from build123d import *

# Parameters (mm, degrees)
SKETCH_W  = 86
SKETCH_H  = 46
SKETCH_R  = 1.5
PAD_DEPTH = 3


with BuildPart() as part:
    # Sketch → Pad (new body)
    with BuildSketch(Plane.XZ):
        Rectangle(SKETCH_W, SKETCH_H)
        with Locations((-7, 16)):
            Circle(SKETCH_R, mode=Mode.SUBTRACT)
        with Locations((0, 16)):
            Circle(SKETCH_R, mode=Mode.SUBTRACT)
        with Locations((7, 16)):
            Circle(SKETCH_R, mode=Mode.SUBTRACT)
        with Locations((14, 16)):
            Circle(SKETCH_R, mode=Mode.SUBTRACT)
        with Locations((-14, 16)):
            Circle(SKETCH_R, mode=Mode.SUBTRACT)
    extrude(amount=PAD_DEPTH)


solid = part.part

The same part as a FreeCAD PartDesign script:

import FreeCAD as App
import Part
import Sketcher
from FreeCAD import Vector

doc = App.newDocument("Part")
body = doc.addObject("PartDesign::Body", "Body")

# Sketch on XZ plane
sketch1 = body.newObject("Sketcher::SketchObject", "Sketch")
sketch1.AttachmentSupport = (doc.getObject("XZ_Plane"), [""])
sketch1.MapMode = "FlatFace"
sketch1.addGeometry([
    Part.LineSegment(Vector(-43, 23, 0), Vector(-43, -23, 0)),  # 0
    Part.LineSegment(Vector(-43, -23, 0), Vector(43, -23, 0)),  # 1
    Part.LineSegment(Vector(43, -23, 0), Vector(43, 23, 0)),  # 2
    Part.LineSegment(Vector(43, 23, 0), Vector(-43, 23, 0)),  # 3
    Part.Circle(Vector(-14, 16, 0), Vector(0, 0, 1), 1.5),  # 4
    Part.Circle(Vector(-7, 16, 0), Vector(0, 0, 1), 1.5),  # 5
    Part.Circle(Vector(0, 16, 0), Vector(0, 0, 1), 1.5),  # 6
    Part.Circle(Vector(7, 16, 0), Vector(0, 0, 1), 1.5),  # 7
    Part.Circle(Vector(14, 16, 0), Vector(0, 0, 1), 1.5),  # 8
], False)
sketch1.addConstraint([
    Sketcher.Constraint("Coincident", 0, 2, 1, 1),
    Sketcher.Constraint("Coincident", 1, 2, 2, 1),
    Sketcher.Constraint("Coincident", 2, 2, 3, 1),
    Sketcher.Constraint("Coincident", 3, 2, 0, 1),
    Sketcher.Constraint("Vertical", 0),
    Sketcher.Constraint("Horizontal", 1),
    Sketcher.Constraint("Vertical", 2),
    Sketcher.Constraint("Horizontal", 3),
    Sketcher.Constraint("Equal", 4, 5),
    Sketcher.Constraint("Equal", 5, 6),
    Sketcher.Constraint("Equal", 6, 7),
    Sketcher.Constraint("Equal", 7, 8),
    Sketcher.Constraint("Symmetric", 0, 2, 2, 2, -1, 1),
    Sketcher.Constraint("Symmetric", 5, 3, 7, 3, -2),
    Sketcher.Constraint("Symmetric", 4, 3, 8, 3, -2),
    Sketcher.Constraint("PointOnObject", 6, 3, -2),
    Sketcher.Constraint("Horizontal", 4, 3, 5, 3),
    Sketcher.Constraint("Horizontal", 5, 3, 6, 3),
    Sketcher.Constraint("Diameter", 4, 3.0),
    Sketcher.Constraint("DistanceX", 1, 1, 1, 2, 86.0),
    Sketcher.Constraint("DistanceY", 0, 2, 0, 1, 46.0),
    Sketcher.Constraint("DistanceX", 4, 3, -1, 1, 14.0),
    Sketcher.Constraint("DistanceY", -1, 1, 4, 3, 16.0),
    Sketcher.Constraint("DistanceX", 5, 3, -1, 1, 7.0),
])
pad1 = body.newObject("PartDesign::Pad", "Pad")
pad1.Profile = sketch1
pad1.Length = 3

doc.recompute()
